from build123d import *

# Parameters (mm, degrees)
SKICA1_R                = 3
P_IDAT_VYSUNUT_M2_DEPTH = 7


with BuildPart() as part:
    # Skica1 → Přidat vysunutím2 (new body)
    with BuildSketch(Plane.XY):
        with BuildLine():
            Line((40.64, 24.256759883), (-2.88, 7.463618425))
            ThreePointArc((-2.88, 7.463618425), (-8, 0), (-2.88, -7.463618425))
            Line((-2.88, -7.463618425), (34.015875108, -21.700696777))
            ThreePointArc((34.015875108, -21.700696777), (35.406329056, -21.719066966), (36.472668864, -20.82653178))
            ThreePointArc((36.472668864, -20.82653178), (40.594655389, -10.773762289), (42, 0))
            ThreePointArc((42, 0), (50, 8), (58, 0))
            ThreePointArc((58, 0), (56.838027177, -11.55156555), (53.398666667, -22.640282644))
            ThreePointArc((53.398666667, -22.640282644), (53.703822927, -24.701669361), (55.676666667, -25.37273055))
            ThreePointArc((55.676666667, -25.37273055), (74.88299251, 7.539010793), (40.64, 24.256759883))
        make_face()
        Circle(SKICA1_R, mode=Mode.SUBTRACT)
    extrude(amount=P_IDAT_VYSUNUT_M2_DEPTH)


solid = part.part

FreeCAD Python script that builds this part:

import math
import FreeCAD as App
import Part
import Sketcher
Q = App.Units.Quantity

doc = App.newDocument("Part")
params = doc.addObject("Spreadsheet::Sheet", "Params")
for row, (alias, value) in enumerate([
    ("sketch1_diameter", "6 mm"),
    ("sketch1_radius", "8 mm"),
    ("sketch1_radius2", "2 mm"),
    ("sketch1_radius3", "42 mm"),
    ("sketch1_radius4", "26 mm"),
    ("pad1_length", "7 mm"),
], start=1):
    params.set(f"A{row}", alias)
    params.set(f"B{row}", "=" + value)
    params.setAlias(f"B{row}", alias)

body = doc.addObject("PartDesign::Body", "Body")

sketch1 = body.newObject("Sketcher::SketchObject", "Sketch")
sketch1.AttachmentSupport = (doc.getObject("XY_Plane"), [""])
sketch1.MapMode = "FlatFace"
sketch1.addGeometry([
    Part.LineSegment(App.Vector(40.6, 24.3, 0), App.Vector(-2.9, 7.5, 0)),
    Part.ArcOfCircle(Part.Circle(App.Vector(0, 0, 0), App.Vector(0, 0, 1), 8), math.radians(111), math.radians(249)),
    Part.LineSegment(App.Vector(-2.9, -7.5, 0), App.Vector(34, -21.7, 0)),
    Part.ArcOfCircle(Part.Circle(App.Vector(34.7, -19.8, 0), App.Vector(0, 0, 1), 2), math.radians(-111), math.radians(-30)),
    Part.ArcOfCircle(Part.Circle(App.Vector(0, 0, 0), App.Vector(0, 0, 1), 42), math.radians(-30), math.radians(0)),
    Part.ArcOfCircle(Part.Circle(App.Vector(50, 0, 0), App.Vector(0, 0, 1), 8), math.radians(0), math.radians(180)),
    Part.ArcOfCircle(Part.Circle(App.Vector(0, 0, 0), App.Vector(0, 0, 1), 58), math.radians(-23), math.radians(0)),
    Part.ArcOfCircle(Part.Circle(App.Vector(55.2, -23.4, 0), App.Vector(0, 0, 1), 2), math.radians(157), math.radians(283)),
    Part.ArcOfCircle(Part.Circle(App.Vector(50, 0, 0), App.Vector(0, 0, 1), 26), math.radians(-77), math.radians(111)),
    Part.Circle(App.Vector(0, 0, 0), App.Vector(0, 0, 1), 3),
], False)
sketch1.addConstraint([
    Sketcher.Constraint("Tangent", 0, 2, 1, 1),
    Sketcher.Constraint("Tangent", 1, 2, 2, 1),
    Sketcher.Constraint("Tangent", 2, 2, 3, 1),
    Sketcher.Constraint("Tangent", 3, 2, 4, 1),
    Sketcher.Constraint("Tangent", 4, 2, 5, 2),
    Sketcher.Constraint("Tangent", 5, 1, 6, 2),
    Sketcher.Constraint("Tangent", 6, 1, 7, 1),
    Sketcher.Constraint("Tangent", 7, 2, 8, 1),
    Sketcher.Constraint("Tangent", 8, 2, 0, 1),
    Sketcher.Constraint("Coincident", 1, 3, -1, 1),
    Sketcher.Constraint("Coincident", 4, 3, -1, 1),
    Sketcher.Constraint("Coincident", 6, 3, -1, 1),
    Sketcher.Constraint("Coincident", 9, 3, -1, 1),
    Sketcher.Constraint("Coincident", 8, 3, 5, 3),
    Sketcher.Constraint("Equal", 1, 5),
    Sketcher.Constraint("Equal", 3, 7),
    Sketcher.Constraint("PointOnObject", 5, 3, -1),
    Sketcher.Constraint("Vertical", 0, 2, 1, 2),
    Sketcher.Constraint("Diameter", 9, Q("6 mm")),
    Sketcher.Constraint("Radius", 1, Q("8 mm")),
    Sketcher.Constraint("Radius", 3, Q("2 mm")),
    Sketcher.Constraint("Radius", 4, Q("42 mm")),
    Sketcher.Constraint("Radius", 8, Q("26 mm")),
])
sketch1.setExpression("Constraints[18]", "Params.sketch1_diameter")
sketch1.setExpression("Constraints[19]", "Params.sketch1_radius")
sketch1.setExpression("Constraints[20]", "Params.sketch1_radius2")
sketch1.setExpression("Constraints[21]", "Params.sketch1_radius3")
sketch1.setExpression("Constraints[22]", "Params.sketch1_radius4")
pad1 = body.newObject("PartDesign::Pad", "Pad")
pad1.Profile = sketch1
pad1.setExpression("Length", "Params.pad1_length")

doc.recompute()
